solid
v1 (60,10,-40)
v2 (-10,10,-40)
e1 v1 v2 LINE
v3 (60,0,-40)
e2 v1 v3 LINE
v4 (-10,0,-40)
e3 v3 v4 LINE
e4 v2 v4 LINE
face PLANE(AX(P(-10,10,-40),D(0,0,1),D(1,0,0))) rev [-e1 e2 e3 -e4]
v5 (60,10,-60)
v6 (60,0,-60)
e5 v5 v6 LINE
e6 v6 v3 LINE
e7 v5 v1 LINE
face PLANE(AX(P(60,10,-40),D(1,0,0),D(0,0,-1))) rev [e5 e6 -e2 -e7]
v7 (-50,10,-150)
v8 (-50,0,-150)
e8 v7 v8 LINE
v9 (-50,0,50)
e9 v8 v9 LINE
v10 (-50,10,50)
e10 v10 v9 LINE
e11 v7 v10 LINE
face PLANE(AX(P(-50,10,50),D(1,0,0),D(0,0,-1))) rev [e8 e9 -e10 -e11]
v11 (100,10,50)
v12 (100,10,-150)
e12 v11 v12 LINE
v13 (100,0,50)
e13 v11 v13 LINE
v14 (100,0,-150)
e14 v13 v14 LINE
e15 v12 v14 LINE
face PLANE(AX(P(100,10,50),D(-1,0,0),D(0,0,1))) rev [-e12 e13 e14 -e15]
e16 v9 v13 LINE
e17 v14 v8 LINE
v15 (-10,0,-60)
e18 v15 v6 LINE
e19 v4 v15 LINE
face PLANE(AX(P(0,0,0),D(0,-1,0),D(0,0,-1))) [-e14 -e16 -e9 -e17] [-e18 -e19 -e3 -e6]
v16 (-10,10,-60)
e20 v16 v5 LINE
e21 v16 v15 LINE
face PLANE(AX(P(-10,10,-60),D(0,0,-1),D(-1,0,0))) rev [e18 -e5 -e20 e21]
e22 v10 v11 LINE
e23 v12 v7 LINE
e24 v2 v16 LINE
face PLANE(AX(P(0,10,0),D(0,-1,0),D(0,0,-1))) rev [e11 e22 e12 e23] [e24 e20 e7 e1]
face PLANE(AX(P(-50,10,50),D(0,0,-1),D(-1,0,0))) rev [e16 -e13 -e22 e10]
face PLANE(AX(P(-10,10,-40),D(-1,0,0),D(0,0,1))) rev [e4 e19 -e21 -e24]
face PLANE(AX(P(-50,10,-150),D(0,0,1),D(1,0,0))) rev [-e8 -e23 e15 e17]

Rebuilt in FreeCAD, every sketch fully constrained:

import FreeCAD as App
import Part
import Sketcher


def add_polygon(sketch, points):
    """Adds a closed chain of lines whose ends are joined by coincident constraints."""
    first, n = sketch.GeometryCount, len(points)
    for a, b in zip(points, points[1:] + points[:1]):
        sketch.addGeometry(Part.LineSegment(App.Vector(*a, 0), App.Vector(*b, 0)), False)
    for i in range(n):
        sketch.addConstraint(Sketcher.Constraint("Coincident", first + i, 2, first + (i + 1) % n, 1))

doc = App.newDocument("Part")
body = doc.addObject("PartDesign::Body", "Body")

sketch1 = doc.addObject("Sketcher::SketchObject", "Sketch")
body.addObject(sketch1)
sketch1.AttachmentSupport = (doc.XZ_Plane, [""])
sketch1.MapMode = "FlatFace"
add_polygon(sketch1, [(-50, -150), (-50, 50), (100, 50), (100, -150)])
sketch1.addConstraint([
    Sketcher.Constraint("Vertical", 0),
    Sketcher.Constraint("Horizontal", 1),
    Sketcher.Constraint("Vertical", 2),
    Sketcher.Constraint("Horizontal", 3),
    Sketcher.Constraint("DistanceX", 1, 1, 1, 2, 150.0),
    Sketcher.Constraint("DistanceY", 0, 1, 0, 2, 200.0),
    Sketcher.Constraint("DistanceX", 0, 2, -1, 1, 50.0),
    Sketcher.Constraint("DistanceY", -1, 1, 0, 2, 50.0),
])
pad1 = doc.addObject("PartDesign::Pad", "Pad")
body.addObject(pad1)
pad1.Profile = sketch1
pad1.Length = 10
pad1.Reversed = True

sketch2 = doc.addObject("Sketcher::SketchObject", "Sketch001")
body.addObject(sketch2)
sketch2.AttachmentSupport = (doc.XZ_Plane, [""])
sketch2.MapMode = "FlatFace"
add_polygon(sketch2, [(-10, -40), (-10, -60), (60, -60), (60, -40)])
sketch2.addConstraint([
    Sketcher.Constraint("Vertical", 0),
    Sketcher.Constraint("Horizontal", 1),
    Sketcher.Constraint("Vertical", 2),
    Sketcher.Constraint("Horizontal", 3),
    Sketcher.Constraint("DistanceX", 1, 1, 1, 2, 70.0),
    Sketcher.Constraint("DistanceY", 0, 2, 0, 1, 20.0),
    Sketcher.Constraint("DistanceX", 0, 2, -1, 1, 10.0),
    Sketcher.Constraint("DistanceY", 0, 2, -1, 1, 60.0),
])
pocket1 = doc.addObject("PartDesign::Pocket", "Pocket")
body.addObject(pocket1)
pocket1.Profile = sketch2
pocket1.Type = "ThroughAll"
pocket1.Midplane = True

doc.recompute()
